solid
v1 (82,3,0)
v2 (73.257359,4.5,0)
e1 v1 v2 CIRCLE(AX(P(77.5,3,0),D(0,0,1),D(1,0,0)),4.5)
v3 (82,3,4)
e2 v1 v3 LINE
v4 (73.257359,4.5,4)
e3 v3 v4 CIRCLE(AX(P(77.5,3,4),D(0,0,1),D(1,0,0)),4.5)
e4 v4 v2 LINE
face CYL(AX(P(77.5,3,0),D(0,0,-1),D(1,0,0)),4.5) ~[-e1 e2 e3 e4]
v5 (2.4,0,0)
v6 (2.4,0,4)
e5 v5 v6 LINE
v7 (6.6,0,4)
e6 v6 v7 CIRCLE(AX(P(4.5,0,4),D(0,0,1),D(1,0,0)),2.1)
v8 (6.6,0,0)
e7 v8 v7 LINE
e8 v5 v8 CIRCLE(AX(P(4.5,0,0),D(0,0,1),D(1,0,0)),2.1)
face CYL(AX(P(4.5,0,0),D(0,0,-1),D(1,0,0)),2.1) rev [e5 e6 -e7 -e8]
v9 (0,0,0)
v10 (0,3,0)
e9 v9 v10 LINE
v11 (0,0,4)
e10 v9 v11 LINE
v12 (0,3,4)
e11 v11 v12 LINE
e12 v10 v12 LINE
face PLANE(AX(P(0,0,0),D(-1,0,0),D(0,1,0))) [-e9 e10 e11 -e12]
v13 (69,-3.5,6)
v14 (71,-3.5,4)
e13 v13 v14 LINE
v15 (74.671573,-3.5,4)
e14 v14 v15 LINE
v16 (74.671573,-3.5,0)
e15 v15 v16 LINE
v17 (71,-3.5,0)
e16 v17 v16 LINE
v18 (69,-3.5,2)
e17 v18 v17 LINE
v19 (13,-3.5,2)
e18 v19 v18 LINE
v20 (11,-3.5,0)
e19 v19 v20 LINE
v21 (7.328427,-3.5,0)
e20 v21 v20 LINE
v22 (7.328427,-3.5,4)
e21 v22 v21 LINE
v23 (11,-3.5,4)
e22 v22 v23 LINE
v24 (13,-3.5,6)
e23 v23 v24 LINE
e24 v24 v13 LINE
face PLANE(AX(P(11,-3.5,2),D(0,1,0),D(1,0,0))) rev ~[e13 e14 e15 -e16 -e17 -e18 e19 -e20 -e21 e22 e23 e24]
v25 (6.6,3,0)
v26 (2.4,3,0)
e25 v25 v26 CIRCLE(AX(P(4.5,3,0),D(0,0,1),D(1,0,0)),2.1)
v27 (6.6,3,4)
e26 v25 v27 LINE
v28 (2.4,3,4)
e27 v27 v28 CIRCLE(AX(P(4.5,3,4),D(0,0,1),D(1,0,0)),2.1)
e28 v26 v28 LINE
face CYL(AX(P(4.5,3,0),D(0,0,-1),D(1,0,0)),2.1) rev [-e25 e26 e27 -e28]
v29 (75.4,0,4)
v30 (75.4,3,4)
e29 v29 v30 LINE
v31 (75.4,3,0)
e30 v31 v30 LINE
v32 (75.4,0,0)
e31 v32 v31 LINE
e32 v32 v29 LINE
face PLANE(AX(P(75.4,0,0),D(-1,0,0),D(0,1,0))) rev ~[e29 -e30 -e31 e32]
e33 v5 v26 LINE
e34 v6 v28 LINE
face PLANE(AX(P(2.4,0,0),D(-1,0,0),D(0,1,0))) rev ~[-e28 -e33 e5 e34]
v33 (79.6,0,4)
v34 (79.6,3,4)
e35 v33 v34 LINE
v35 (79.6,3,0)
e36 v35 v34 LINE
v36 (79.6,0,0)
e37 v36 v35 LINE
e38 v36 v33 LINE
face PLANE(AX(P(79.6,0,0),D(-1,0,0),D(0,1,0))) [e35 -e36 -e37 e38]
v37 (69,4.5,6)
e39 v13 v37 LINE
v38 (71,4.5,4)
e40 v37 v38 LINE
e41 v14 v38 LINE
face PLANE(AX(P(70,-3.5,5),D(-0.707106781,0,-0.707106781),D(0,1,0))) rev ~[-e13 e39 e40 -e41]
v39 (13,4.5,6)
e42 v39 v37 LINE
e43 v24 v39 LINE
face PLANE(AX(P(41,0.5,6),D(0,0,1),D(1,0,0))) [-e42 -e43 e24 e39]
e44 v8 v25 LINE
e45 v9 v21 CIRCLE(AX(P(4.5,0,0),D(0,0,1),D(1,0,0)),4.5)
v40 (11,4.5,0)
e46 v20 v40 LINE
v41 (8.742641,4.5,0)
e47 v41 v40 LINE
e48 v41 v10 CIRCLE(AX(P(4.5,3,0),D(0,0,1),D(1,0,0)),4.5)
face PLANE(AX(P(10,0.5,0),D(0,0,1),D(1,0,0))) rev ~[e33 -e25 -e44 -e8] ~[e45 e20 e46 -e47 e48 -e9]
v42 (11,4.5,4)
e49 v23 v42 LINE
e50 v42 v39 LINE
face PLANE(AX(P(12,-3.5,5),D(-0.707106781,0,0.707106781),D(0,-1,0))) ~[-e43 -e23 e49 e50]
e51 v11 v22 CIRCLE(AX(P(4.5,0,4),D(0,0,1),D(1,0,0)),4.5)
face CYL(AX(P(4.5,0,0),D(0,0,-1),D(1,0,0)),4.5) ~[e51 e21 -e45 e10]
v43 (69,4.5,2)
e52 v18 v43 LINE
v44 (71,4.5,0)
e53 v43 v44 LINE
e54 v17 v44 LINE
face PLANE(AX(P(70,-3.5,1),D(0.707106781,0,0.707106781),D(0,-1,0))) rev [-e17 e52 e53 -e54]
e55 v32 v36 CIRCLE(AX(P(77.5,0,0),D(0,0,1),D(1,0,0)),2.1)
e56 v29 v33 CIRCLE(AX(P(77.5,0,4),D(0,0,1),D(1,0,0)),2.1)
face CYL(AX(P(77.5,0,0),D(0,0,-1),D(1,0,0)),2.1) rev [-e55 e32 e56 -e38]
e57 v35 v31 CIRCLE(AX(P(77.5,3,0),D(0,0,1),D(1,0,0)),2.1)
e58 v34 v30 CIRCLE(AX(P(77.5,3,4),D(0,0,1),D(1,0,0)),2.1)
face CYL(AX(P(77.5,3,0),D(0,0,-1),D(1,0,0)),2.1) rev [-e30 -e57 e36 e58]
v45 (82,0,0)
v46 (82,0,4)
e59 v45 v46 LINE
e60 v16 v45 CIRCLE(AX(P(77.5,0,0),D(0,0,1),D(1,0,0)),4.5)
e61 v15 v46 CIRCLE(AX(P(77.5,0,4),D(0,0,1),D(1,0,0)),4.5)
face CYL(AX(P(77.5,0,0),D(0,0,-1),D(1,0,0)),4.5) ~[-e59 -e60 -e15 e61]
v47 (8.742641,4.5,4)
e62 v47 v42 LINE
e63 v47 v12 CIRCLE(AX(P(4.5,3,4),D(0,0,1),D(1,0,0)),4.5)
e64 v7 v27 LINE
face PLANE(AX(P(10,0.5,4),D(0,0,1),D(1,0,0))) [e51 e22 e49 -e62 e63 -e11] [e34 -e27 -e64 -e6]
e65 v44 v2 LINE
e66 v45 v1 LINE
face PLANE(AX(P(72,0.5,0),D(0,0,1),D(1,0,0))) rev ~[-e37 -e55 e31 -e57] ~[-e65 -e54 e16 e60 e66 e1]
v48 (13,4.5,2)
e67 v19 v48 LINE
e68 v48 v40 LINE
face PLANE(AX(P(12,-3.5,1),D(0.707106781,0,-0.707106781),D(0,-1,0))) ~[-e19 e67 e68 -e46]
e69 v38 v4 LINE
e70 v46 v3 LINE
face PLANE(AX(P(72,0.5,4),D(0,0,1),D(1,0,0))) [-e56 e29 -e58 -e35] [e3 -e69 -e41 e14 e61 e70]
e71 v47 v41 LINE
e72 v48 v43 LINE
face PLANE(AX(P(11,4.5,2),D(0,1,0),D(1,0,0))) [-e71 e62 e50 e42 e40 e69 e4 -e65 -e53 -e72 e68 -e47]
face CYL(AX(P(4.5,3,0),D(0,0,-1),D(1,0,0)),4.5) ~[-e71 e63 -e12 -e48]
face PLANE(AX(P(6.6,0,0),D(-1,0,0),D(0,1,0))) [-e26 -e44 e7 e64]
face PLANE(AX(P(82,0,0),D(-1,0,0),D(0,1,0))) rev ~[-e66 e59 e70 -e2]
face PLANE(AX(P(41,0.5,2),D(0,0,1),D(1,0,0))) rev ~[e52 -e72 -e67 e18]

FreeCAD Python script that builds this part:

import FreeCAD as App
import Part
import Sketcher
from FreeCAD import Vector


def edges_at(feature, points):
    """Names of the edges that pass closest to the given points."""
    edges = feature.Shape.Edges
    near = lambda p: min(range(len(edges)), key=lambda i: edges[i].distToShape(Part.Vertex(*p))[0])
    return sorted({f"Edge{near(p) + 1}" for p in points})

doc = App.newDocument("Part")
body = doc.addObject("PartDesign::Body", "Body")

# Sketch on XY plane
sketch1 = body.newObject("Sketcher::SketchObject", "Sketch")
sketch1.AttachmentSupport = (doc.getObject("XY_Plane"), [""])
sketch1.MapMode = "FlatFace"
sketch1.addGeometry(Part.LineSegment(Vector(-2.1, 3, 0), Vector(-2.1, 0, 0)), False)
sketch1.addGeometry(Part.LineSegment(Vector(-2.1, 0, 0), Vector(2.1, 0, 0)), False)
sketch1.addGeometry(Part.LineSegment(Vector(2.1, 0, 0), Vector(2.1, 3, 0)), False)
sketch1.addGeometry(Part.LineSegment(Vector(2.1, 3, 0), Vector(-2.1, 3, 0)), False)
sketch1.addConstraint(Sketcher.Constraint("Coincident", 0, 2, 1, 1))
sketch1.addConstraint(Sketcher.Constraint("Coincident", 1, 2, 2, 1))
sketch1.addConstraint(Sketcher.Constraint("Coincident", 2, 2, 3, 1))
sketch1.addConstraint(Sketcher.Constraint("Coincident", 3, 2, 0, 1))
sketch1.addConstraint(Sketcher.Constraint("Vertical", 0))
sketch1.addConstraint(Sketcher.Constraint("Horizontal", 1))
sketch1.addConstraint(Sketcher.Constraint("Vertical", 2))
sketch1.addConstraint(Sketcher.Constraint("Horizontal", 3))
sketch1.addConstraint(Sketcher.Constraint("Symmetric", 0, 2, 1, 2, -1, 1))
sketch1.addConstraint(Sketcher.Constraint("DistanceY", 0, 2, 0, 1, 3.0))
sketch1.addConstraint(Sketcher.Constraint("DistanceX", 1, 1, 1, 2, 4.2))
pad1 = body.newObject("PartDesign::Pad", "Pad")
pad1.Profile = sketch1
pad1.Length = 4
body2 = doc.addObject("PartDesign::Body", "Body001")

# Sketch on XY plane
sketch2 = body2.newObject("Sketcher::SketchObject", "Sketch001")
sketch2.AttachmentSupport = (doc.getObject("XY_Plane001"), [""])
sketch2.MapMode = "FlatFace"
sketch2.addGeometry(Part.Circle(Vector(0, 3, 0), Vector(0, 0, 1), 2.1), False)
sketch2.addConstraint(Sketcher.Constraint("PointOnObject", 0, 3, -2))
sketch2.addConstraint(Sketcher.Constraint("Diameter", 0, 4.2))
sketch2.addConstraint(Sketcher.Constraint("DistanceY", -1, 1, 0, 3, 3.0))
pad2 = body2.newObject("PartDesign::Pad", "Pad001")
pad2.Profile = sketch2
pad2.Length = 4
body3 = doc.addObject("PartDesign::Body", "Body002")

# Sketch on XY plane
sketch3 = body3.newObject("Sketcher::SketchObject", "Sketch002")
sketch3.AttachmentSupport = (doc.getObject("XY_Plane002"), [""])
sketch3.MapMode = "FlatFace"
sketch3.addGeometry(Part.Circle(Vector(0, 0, 0), Vector(0, 0, 1), 2.1), False)
sketch3.addConstraint(Sketcher.Constraint("Coincident", 0, 3, -1, 1))
sketch3.addConstraint(Sketcher.Constraint("Diameter", 0, 4.2))
pad3 = body3.newObject("PartDesign::Pad", "Pad002")
pad3.Profile = sketch3
pad3.Length = 4
doc.recompute()

boolean = body3.newObject("PartDesign::Boolean", "Boolean")
boolean.Type = "Fuse"
boolean.addObjects([body])
doc.recompute()

boolean2 = body3.newObject("PartDesign::Boolean", "Boolean001")
boolean2.Type = "Fuse"
boolean2.addObjects([body2])
body4 = doc.addObject("PartDesign::Body", "Body003")

# Sketch on XY plane
sketch4 = body4.newObject("Sketcher::SketchObject", "Sketch003")
sketch4.AttachmentSupport = (doc.getObject("XY_Plane003"), [""])
sketch4.MapMode = "FlatFace"
sketch4.addGeometry(Part.LineSegment(Vector(-4.5, 3, 0), Vector(-4.5, 0, 0)), False)
sketch4.addGeometry(Part.LineSegment(Vector(-4.5, 0, 0), Vector(4.5, 0, 0)), False)
sketch4.addGeometry(Part.LineSegment(Vector(4.5, 0, 0), Vector(4.5, 3, 0)), False)
sketch4.addGeometry(Part.LineSegment(Vector(4.5, 3, 0), Vector(-4.5, 3, 0)), False)
sketch4.addConstraint(Sketcher.Constraint("Coincident", 0, 2, 1, 1))
sketch4.addConstraint(Sketcher.Constraint("Coincident", 1, 2, 2, 1))
sketch4.addConstraint(Sketcher.Constraint("Coincident", 2, 2, 3, 1))
sketch4.addConstraint(Sketcher.Constraint("Coincident", 3, 2, 0, 1))
sketch4.addConstraint(Sketcher.Constraint("Vertical", 0))
sketch4.addConstraint(Sketcher.Constraint("Horizontal", 1))
sketch4.addConstraint(Sketcher.Constraint("Vertical", 2))
sketch4.addConstraint(Sketcher.Constraint("Horizontal", 3))
sketch4.addConstraint(Sketcher.Constraint("Symmetric", 0, 2, 1, 2, -1, 1))
sketch4.addConstraint(Sketcher.Constraint("DistanceX", 1, 1, 1, 2, 9.0))
sketch4.addConstraint(Sketcher.Constraint("DistanceY", 0, 2, 0, 1, 3.0))
pad4 = body4.newObject("PartDesign::Pad", "Pad003")
pad4.Profile = sketch4
pad4.Length = 4
body5 = doc.addObject("PartDesign::Body", "Body004")

# Sketch on XY plane
sketch5 = body5.newObject("Sketcher::SketchObject", "Sketch004")
sketch5.AttachmentSupport = (doc.getObject("XY_Plane004"), [""])
sketch5.MapMode = "FlatFace"
sketch5.addGeometry(Part.Circle(Vector(0, 3, 0), Vector(0, 0, 1), 4.5), False)
sketch5.addConstraint(Sketcher.Constraint("PointOnObject", 0, 3, -2))
sketch5.addConstraint(Sketcher.Constraint("Diameter", 0, 9.0))
sketch5.addConstraint(Sketcher.Constraint("DistanceY", -1, 1, 0, 3, 3.0))
pad5 = body5.newObject("PartDesign::Pad", "Pad004")
pad5.Profile = sketch5
pad5.Length = 4
body6 = doc.addObject("PartDesign::Body", "Body005")

# Sketch on XY plane
sketch6 = body6.newObject("Sketcher::SketchObject", "Sketch005")
sketch6.AttachmentSupport = (doc.getObject("XY_Plane005"), [""])
sketch6.MapMode = "FlatFace"
sketch6.addGeometry(Part.Circle(Vector(0, 0, 0), Vector(0, 0, 1), 4.5), False)
sketch6.addConstraint(Sketcher.Constraint("Coincident", 0, 3, -1, 1))
sketch6.addConstraint(Sketcher.Constraint("Diameter", 0, 9.0))
pad6 = body6.newObject("PartDesign::Pad", "Pad005")
pad6.Profile = sketch6
pad6.Length = 4
doc.recompute()

boolean3 = body6.newObject("PartDesign::Boolean", "Boolean002")
boolean3.Type = "Fuse"
boolean3.addObjects([body4])
doc.recompute()

boolean4 = body6.newObject("PartDesign::Boolean", "Boolean003")
boolean4.Type = "Fuse"
boolean4.addObjects([body5])
doc.recompute()

boolean5 = body6.newObject("PartDesign::Boolean", "Boolean004")
boolean5.Type = "Cut"
boolean5.addObjects([body3])
body7 = doc.addObject("PartDesign::Body", "Body006")
doc.recompute()

body6.Placement = App.Placement(Vector(77.5, 0, 0), App.Rotation(Vector(0, 0, 1), 0))
boolean6 = body7.newObject("PartDesign::Boolean", "Boolean005")
boolean6.Type = "Fuse"
boolean6.addObjects([body6])
body8 = doc.addObject("PartDesign::Body", "Body007")

# Sketch on XY plane
sketch7 = body8.newObject("Sketcher::SketchObject", "Sketch006")
sketch7.AttachmentSupport = (doc.getObject("XY_Plane007"), [""])
sketch7.MapMode = "FlatFace"
sketch7.addGeometry(Part.LineSegment(Vector(69, 4.5, 0), Vector(69, -3.5, 0)), False)
sketch7.addGeometry(Part.LineSegment(Vector(69, -3.5, 0), Vector(75, -3.5, 0)), False)
sketch7.addGeometry(Part.LineSegment(Vector(75, -3.5, 0), Vector(75, 4.5, 0)), False)
sketch7.addGeometry(Part.LineSegment(Vector(75, 4.5, 0), Vector(69, 4.5, 0)), False)
sketch7.addConstraint(Sketcher.Constraint("Coincident", 0, 2, 1, 1))
sketch7.addConstraint(Sketcher.Constraint("Coincident", 1, 2, 2, 1))
sketch7.addConstraint(Sketcher.Constraint("Coincident", 2, 2, 3, 1))
sketch7.addConstraint(Sketcher.Constraint("Coincident", 3, 2, 0, 1))
sketch7.addConstraint(Sketcher.Constraint("Vertical", 0))
sketch7.addConstraint(Sketcher.Constraint("Horizontal", 1))
sketch7.addConstraint(Sketcher.Constraint("Vertical", 2))
sketch7.addConstraint(Sketcher.Constraint("Horizontal", 3))
sketch7.addConstraint(Sketcher.Constraint("DistanceX", 1, 1, 1, 2, 6.0))
sketch7.addConstraint(Sketcher.Constraint("DistanceY", 0, 2, 0, 1, 8.0))
sketch7.addConstraint(Sketcher.Constraint("DistanceX", -1, 1, 0, 2, 69.0))
sketch7.addConstraint(Sketcher.Constraint("DistanceY", 0, 2, -1, 1, 3.5))
pad7 = body8.newObject("PartDesign::Pad", "Pad006")
pad7.Profile = sketch7
pad7.Length = 4
doc.recompute()

chamfer = body8.newObject("PartDesign::Chamfer", "Chamfer")
chamfer.Base = (pad7, edges_at(pad7, [(69, 0.5, 0)]))
chamfer.Size = 2
body9 = doc.addObject("PartDesign::Body", "Body008")

# Sketch on XY plane
sketch8 = body9.newObject("Sketcher::SketchObject", "Sketch007")
sketch8.AttachmentSupport = (doc.getObject("XY_Plane008"), [""])
sketch8.MapMode = "FlatFace"
sketch8.AttachmentOffset = App.Placement(Vector(0, 0, 2), App.Rotation())
sketch8.addGeometry(Part.LineSegment(Vector(11, 4.5, 0), Vector(11, -3.5, 0)), False)
sketch8.addGeometry(Part.LineSegment(Vector(11, -3.5, 0), Vector(71, -3.5, 0)), False)
sketch8.addGeometry(Part.LineSegment(Vector(71, -3.5, 0), Vector(71, 4.5, 0)), False)
sketch8.addGeometry(Part.LineSegment(Vector(71, 4.5, 0), Vector(11, 4.5, 0)), False)
sketch8.addConstraint(Sketcher.Constraint("Coincident", 0, 2, 1, 1))
sketch8.addConstraint(Sketcher.Constraint("Coincident", 1, 2, 2, 1))
sketch8.addConstraint(Sketcher.Constraint("Coincident", 2, 2, 3, 1))
sketch8.addConstraint(Sketcher.Constraint("Coincident", 3, 2, 0, 1))
sketch8.addConstraint(Sketcher.Constraint("Vertical", 0))
sketch8.addConstraint(Sketcher.Constraint("Horizontal", 1))
sketch8.addConstraint(Sketcher.Constraint("Vertical", 2))
sketch8.addConstraint(Sketcher.Constraint("Horizontal", 3))
sketch8.addConstraint(Sketcher.Constraint("DistanceX", 1, 1, 1, 2, 60.0))
sketch8.addConstraint(Sketcher.Constraint("DistanceY", 0, 2, 0, 1, 8.0))
sketch8.addConstraint(Sketcher.Constraint("DistanceX", -1, 1, 0, 2, 11.0))
sketch8.addConstraint(Sketcher.Constraint("DistanceY", 0, 2, -1, 1, 3.5))
pad8 = body9.newObject("PartDesign::Pad", "Pad007")
pad8.Profile = sketch8
pad8.Length = 4
doc.recompute()

chamfer2 = body9.newObject("PartDesign::Chamfer", "Chamfer001")
chamfer2.Base = (pad8, edges_at(pad8, [(11, 0.5, 6)]))
chamfer2.Size = 2
doc.recompute()

chamfer3 = body9.newObject("PartDesign::Chamfer", "Chamfer002")
chamfer3.Base = (chamfer2, edges_at(chamfer2, [(71, 0.5, 6)]))
chamfer3.Size = 2
body10 = doc.addObject("PartDesign::Body", "Body009")
body10.AllowCompound = True

# Sketch on XY plane
sketch9 = body10.newObject("Sketcher::SketchObject", "Sketch008")
sketch9.AttachmentSupport = (doc.getObject("XY_Plane009"), [""])
sketch9.MapMode = "FlatFace"
sketch9.addGeometry(Part.LineSegment(Vector(7, 4.5, 0), Vector(7, -3.5, 0)), False)
sketch9.addGeometry(Part.LineSegment(Vector(7, -3.5, 0), Vector(13, -3.5, 0)), False)
sketch9.addGeometry(Part.LineSegment(Vector(13, -3.5, 0), Vector(13, 4.5, 0)), False)
sketch9.addGeometry(Part.LineSegment(Vector(13, 4.5, 0), Vector(7, 4.5, 0)), False)
sketch9.addConstraint(Sketcher.Constraint("Coincident", 0, 2, 1, 1))
sketch9.addConstraint(Sketcher.Constraint("Coincident", 1, 2, 2, 1))
sketch9.addConstraint(Sketcher.Constraint("Coincident", 2, 2, 3, 1))
sketch9.addConstraint(Sketcher.Constraint("Coincident", 3, 2, 0, 1))
sketch9.addConstraint(Sketcher.Constraint("Vertical", 0))
sketch9.addConstraint(Sketcher.Constraint("Horizontal", 1))
sketch9.addConstraint(Sketcher.Constraint("Vertical", 2))
sketch9.addConstraint(Sketcher.Constraint("Horizontal", 3))
sketch9.addConstraint(Sketcher.Constraint("DistanceX", 1, 1, 1, 2, 6.0))
sketch9.addConstraint(Sketcher.Constraint("DistanceY", 0, 2, 0, 1, 8.0))
sketch9.addConstraint(Sketcher.Constraint("DistanceX", -1, 1, 0, 2, 7.0))
sketch9.addConstraint(Sketcher.Constraint("DistanceY", 0, 2, -1, 1, 3.5))
pad9 = body10.newObject("PartDesign::Pad", "Pad008")
pad9.Profile = sketch9
pad9.Length = 4
doc.recompute()

chamfer4 = body10.newObject("PartDesign::Chamfer", "Chamfer003")
chamfer4.Base = (pad9, edges_at(pad9, [(13, 0.5, 0)]))
chamfer4.Size = 2
doc.recompute()

boolean7 = body10.newObject("PartDesign::Boolean", "Boolean006")
boolean7.Type = "Fuse"
boolean7.addObjects([body8])
doc.recompute()

boolean8 = body10.newObject("PartDesign::Boolean", "Boolean007")
boolean8.Type = "Fuse"
boolean8.addObjects([body9])
body11 = doc.addObject("PartDesign::Body", "Body010")

# Sketch on XY plane
sketch10 = body11.newObject("Sketcher::SketchObject", "Sketch009")
sketch10.AttachmentSupport = (doc.getObject("XY_Plane010"), [""])
sketch10.MapMode = "FlatFace"
sketch10.addGeometry(Part.LineSegment(Vector(-2.1, 3, 0), Vector(-2.1, 0, 0)), False)
sketch10.addGeometry(Part.LineSegment(Vector(-2.1, 0, 0), Vector(2.1, 0, 0)), False)
sketch10.addGeometry(Part.LineSegment(Vector(2.1, 0, 0), Vector(2.1, 3, 0)), False)
sketch10.addGeometry(Part.LineSegment(Vector(2.1, 3, 0), Vector(-2.1, 3, 0)), False)
sketch10.addConstraint(Sketcher.Constraint("Coincident", 0, 2, 1, 1))
sketch10.addConstraint(Sketcher.Constraint("Coincident", 1, 2, 2, 1))
sketch10.addConstraint(Sketcher.Constraint("Coincident", 2, 2, 3, 1))
sketch10.addConstraint(Sketcher.Constraint("Coincident", 3, 2, 0, 1))
sketch10.addConstraint(Sketcher.Constraint("Vertical", 0))
sketch10.addConstraint(Sketcher.Constraint("Horizontal", 1))
sketch10.addConstraint(Sketcher.Constraint("Vertical", 2))
sketch10.addConstraint(Sketcher.Constraint("Horizontal", 3))
sketch10.addConstraint(Sketcher.Constraint("Symmetric", 0, 2, 1, 2, -1, 1))
sketch10.addConstraint(Sketcher.Constraint("DistanceY", 0, 2, 0, 1, 3.0))
sketch10.addConstraint(Sketcher.Constraint("DistanceX", 1, 1, 1, 2, 4.2))
pad10 = body11.newObject("PartDesign::Pad", "Pad009")
pad10.Profile = sketch10
pad10.Length = 4
body12 = doc.addObject("PartDesign::Body", "Body011")

# Sketch on XY plane
sketch11 = body12.newObject("Sketcher::SketchObject", "Sketch010")
sketch11.AttachmentSupport = (doc.getObject("XY_Plane011"), [""])
sketch11.MapMode = "FlatFace"
sketch11.addGeometry(Part.Circle(Vector(0, 3, 0), Vector(0, 0, 1), 2.1), False)
sketch11.addConstraint(Sketcher.Constraint("PointOnObject", 0, 3, -2))
sketch11.addConstraint(Sketcher.Constraint("Diameter", 0, 4.2))
sketch11.addConstraint(Sketcher.Constraint("DistanceY", -1, 1, 0, 3, 3.0))
pad11 = body12.newObject("PartDesign::Pad", "Pad010")
pad11.Profile = sketch11
pad11.Length = 4
body13 = doc.addObject("PartDesign::Body", "Body012")

# Sketch on XY plane
sketch12 = body13.newObject("Sketcher::SketchObject", "Sketch011")
sketch12.AttachmentSupport = (doc.getObject("XY_Plane012"), [""])
sketch12.MapMode = "FlatFace"
sketch12.addGeometry(Part.Circle(Vector(0, 0, 0), Vector(0, 0, 1), 2.1), False)
sketch12.addConstraint(Sketcher.Constraint("Coincident", 0, 3, -1, 1))
sketch12.addConstraint(Sketcher.Constraint("Diameter", 0, 4.2))
pad12 = body13.newObject("PartDesign::Pad", "Pad011")
pad12.Profile = sketch12
pad12.Length = 4
doc.recompute()

boolean9 = body13.newObject("PartDesign::Boolean", "Boolean008")
boolean9.Type = "Fuse"
boolean9.addObjects([body11])
doc.recompute()

boolean10 = body13.newObject("PartDesign::Boolean", "Boolean009")
boolean10.Type = "Fuse"
boolean10.addObjects([body12])
body14 = doc.addObject("PartDesign::Body", "Body013")

# Sketch on XY plane
sketch13 = body14.newObject("Sketcher::SketchObject", "Sketch012")
sketch13.AttachmentSupport = (doc.getObject("XY_Plane013"), [""])
sketch13.MapMode = "FlatFace"
sketch13.addGeometry(Part.LineSegment(Vector(-4.5, 3, 0), Vector(-4.5, 0, 0)), False)
sketch13.addGeometry(Part.LineSegment(Vector(-4.5, 0, 0), Vector(4.5, 0, 0)), False)
sketch13.addGeometry(Part.LineSegment(Vector(4.5, 0, 0), Vector(4.5, 3, 0)), False)
sketch13.addGeometry(Part.LineSegment(Vector(4.5, 3, 0), Vector(-4.5, 3, 0)), False)
sketch13.addConstraint(Sketcher.Constraint("Coincident", 0, 2, 1, 1))
sketch13.addConstraint(Sketcher.Constraint("Coincident", 1, 2, 2, 1))
sketch13.addConstraint(Sketcher.Constraint("Coincident", 2, 2, 3, 1))
sketch13.addConstraint(Sketcher.Constraint("Coincident", 3, 2, 0, 1))
sketch13.addConstraint(Sketcher.Constraint("Vertical", 0))
sketch13.addConstraint(Sketcher.Constraint("Horizontal", 1))
sketch13.addConstraint(Sketcher.Constraint("Vertical", 2))
sketch13.addConstraint(Sketcher.Constraint("Horizontal", 3))
sketch13.addConstraint(Sketcher.Constraint("Symmetric", 0, 2, 1, 2, -1, 1))
sketch13.addConstraint(Sketcher.Constraint("DistanceX", 1, 1, 1, 2, 9.0))
sketch13.addConstraint(Sketcher.Constraint("DistanceY", 0, 2, 0, 1, 3.0))
pad13 = body14.newObject("PartDesign::Pad", "Pad012")
pad13.Profile = sketch13
pad13.Length = 4
body15 = doc.addObject("PartDesign::Body", "Body014")

# Sketch on XY plane
sketch14 = body15.newObject("Sketcher::SketchObject", "Sketch013")
sketch14.AttachmentSupport = (doc.getObject("XY_Plane014"), [""])
sketch14.MapMode = "FlatFace"
sketch14.addGeometry(Part.Circle(Vector(0, 3, 0), Vector(0, 0, 1), 4.5), False)
sketch14.addConstraint(Sketcher.Constraint("PointOnObject", 0, 3, -2))
sketch14.addConstraint(Sketcher.Constraint("Diameter", 0, 9.0))
sketch14.addConstraint(Sketcher.Constraint("DistanceY", -1, 1, 0, 3, 3.0))
pad14 = body15.newObject("PartDesign::Pad", "Pad013")
pad14.Profile = sketch14
pad14.Length = 4
body16 = doc.addObject("PartDesign::Body", "Body015")

# Sketch on XY plane
sketch15 = body16.newObject("Sketcher::SketchObject", "Sketch014")
sketch15.AttachmentSupport = (doc.getObject("XY_Plane015"), [""])
sketch15.MapMode = "FlatFace"
sketch15.addGeometry(Part.Circle(Vector(0, 0, 0), Vector(0, 0, 1), 4.5), False)
sketch15.addConstraint(Sketcher.Constraint("Coincident", 0, 3, -1, 1))
sketch15.addConstraint(Sketcher.Constraint("Diameter", 0, 9.0))
pad15 = body16.newObject("PartDesign::Pad", "Pad014")
pad15.Profile = sketch15
pad15.Length = 4
doc.recompute()

boolean11 = body16.newObject("PartDesign::Boolean", "Boolean010")
boolean11.Type = "Fuse"
boolean11.addObjects([body14])
doc.recompute()

boolean12 = body16.newObject("PartDesign::Boolean", "Boolean011")
boolean12.Type = "Fuse"
boolean12.addObjects([body15])
doc.recompute()

boolean13 = body16.newObject("PartDesign::Boolean", "Boolean012")
boolean13.Type = "Cut"
boolean13.addObjects([body13])
body17 = doc.addObject("PartDesign::Body", "Body016")
body17.AllowCompound = True
doc.recompute()

body16.Placement = App.Placement(Vector(4.5, 0, 0), App.Rotation(Vector(0, 0, 1), 0))
boolean14 = body17.newObject("PartDesign::Boolean", "Boolean013")
boolean14.Type = "Fuse"
boolean14.addObjects([body16])
doc.recompute()

boolean15 = body17.newObject("PartDesign::Boolean", "Boolean014")
boolean15.Type = "Fuse"
boolean15.addObjects([body7])
doc.recompute()

boolean16 = body17.newObject("PartDesign::Boolean", "Boolean015")
boolean16.Type = "Fuse"
boolean16.addObjects([body10])

doc.recompute()
